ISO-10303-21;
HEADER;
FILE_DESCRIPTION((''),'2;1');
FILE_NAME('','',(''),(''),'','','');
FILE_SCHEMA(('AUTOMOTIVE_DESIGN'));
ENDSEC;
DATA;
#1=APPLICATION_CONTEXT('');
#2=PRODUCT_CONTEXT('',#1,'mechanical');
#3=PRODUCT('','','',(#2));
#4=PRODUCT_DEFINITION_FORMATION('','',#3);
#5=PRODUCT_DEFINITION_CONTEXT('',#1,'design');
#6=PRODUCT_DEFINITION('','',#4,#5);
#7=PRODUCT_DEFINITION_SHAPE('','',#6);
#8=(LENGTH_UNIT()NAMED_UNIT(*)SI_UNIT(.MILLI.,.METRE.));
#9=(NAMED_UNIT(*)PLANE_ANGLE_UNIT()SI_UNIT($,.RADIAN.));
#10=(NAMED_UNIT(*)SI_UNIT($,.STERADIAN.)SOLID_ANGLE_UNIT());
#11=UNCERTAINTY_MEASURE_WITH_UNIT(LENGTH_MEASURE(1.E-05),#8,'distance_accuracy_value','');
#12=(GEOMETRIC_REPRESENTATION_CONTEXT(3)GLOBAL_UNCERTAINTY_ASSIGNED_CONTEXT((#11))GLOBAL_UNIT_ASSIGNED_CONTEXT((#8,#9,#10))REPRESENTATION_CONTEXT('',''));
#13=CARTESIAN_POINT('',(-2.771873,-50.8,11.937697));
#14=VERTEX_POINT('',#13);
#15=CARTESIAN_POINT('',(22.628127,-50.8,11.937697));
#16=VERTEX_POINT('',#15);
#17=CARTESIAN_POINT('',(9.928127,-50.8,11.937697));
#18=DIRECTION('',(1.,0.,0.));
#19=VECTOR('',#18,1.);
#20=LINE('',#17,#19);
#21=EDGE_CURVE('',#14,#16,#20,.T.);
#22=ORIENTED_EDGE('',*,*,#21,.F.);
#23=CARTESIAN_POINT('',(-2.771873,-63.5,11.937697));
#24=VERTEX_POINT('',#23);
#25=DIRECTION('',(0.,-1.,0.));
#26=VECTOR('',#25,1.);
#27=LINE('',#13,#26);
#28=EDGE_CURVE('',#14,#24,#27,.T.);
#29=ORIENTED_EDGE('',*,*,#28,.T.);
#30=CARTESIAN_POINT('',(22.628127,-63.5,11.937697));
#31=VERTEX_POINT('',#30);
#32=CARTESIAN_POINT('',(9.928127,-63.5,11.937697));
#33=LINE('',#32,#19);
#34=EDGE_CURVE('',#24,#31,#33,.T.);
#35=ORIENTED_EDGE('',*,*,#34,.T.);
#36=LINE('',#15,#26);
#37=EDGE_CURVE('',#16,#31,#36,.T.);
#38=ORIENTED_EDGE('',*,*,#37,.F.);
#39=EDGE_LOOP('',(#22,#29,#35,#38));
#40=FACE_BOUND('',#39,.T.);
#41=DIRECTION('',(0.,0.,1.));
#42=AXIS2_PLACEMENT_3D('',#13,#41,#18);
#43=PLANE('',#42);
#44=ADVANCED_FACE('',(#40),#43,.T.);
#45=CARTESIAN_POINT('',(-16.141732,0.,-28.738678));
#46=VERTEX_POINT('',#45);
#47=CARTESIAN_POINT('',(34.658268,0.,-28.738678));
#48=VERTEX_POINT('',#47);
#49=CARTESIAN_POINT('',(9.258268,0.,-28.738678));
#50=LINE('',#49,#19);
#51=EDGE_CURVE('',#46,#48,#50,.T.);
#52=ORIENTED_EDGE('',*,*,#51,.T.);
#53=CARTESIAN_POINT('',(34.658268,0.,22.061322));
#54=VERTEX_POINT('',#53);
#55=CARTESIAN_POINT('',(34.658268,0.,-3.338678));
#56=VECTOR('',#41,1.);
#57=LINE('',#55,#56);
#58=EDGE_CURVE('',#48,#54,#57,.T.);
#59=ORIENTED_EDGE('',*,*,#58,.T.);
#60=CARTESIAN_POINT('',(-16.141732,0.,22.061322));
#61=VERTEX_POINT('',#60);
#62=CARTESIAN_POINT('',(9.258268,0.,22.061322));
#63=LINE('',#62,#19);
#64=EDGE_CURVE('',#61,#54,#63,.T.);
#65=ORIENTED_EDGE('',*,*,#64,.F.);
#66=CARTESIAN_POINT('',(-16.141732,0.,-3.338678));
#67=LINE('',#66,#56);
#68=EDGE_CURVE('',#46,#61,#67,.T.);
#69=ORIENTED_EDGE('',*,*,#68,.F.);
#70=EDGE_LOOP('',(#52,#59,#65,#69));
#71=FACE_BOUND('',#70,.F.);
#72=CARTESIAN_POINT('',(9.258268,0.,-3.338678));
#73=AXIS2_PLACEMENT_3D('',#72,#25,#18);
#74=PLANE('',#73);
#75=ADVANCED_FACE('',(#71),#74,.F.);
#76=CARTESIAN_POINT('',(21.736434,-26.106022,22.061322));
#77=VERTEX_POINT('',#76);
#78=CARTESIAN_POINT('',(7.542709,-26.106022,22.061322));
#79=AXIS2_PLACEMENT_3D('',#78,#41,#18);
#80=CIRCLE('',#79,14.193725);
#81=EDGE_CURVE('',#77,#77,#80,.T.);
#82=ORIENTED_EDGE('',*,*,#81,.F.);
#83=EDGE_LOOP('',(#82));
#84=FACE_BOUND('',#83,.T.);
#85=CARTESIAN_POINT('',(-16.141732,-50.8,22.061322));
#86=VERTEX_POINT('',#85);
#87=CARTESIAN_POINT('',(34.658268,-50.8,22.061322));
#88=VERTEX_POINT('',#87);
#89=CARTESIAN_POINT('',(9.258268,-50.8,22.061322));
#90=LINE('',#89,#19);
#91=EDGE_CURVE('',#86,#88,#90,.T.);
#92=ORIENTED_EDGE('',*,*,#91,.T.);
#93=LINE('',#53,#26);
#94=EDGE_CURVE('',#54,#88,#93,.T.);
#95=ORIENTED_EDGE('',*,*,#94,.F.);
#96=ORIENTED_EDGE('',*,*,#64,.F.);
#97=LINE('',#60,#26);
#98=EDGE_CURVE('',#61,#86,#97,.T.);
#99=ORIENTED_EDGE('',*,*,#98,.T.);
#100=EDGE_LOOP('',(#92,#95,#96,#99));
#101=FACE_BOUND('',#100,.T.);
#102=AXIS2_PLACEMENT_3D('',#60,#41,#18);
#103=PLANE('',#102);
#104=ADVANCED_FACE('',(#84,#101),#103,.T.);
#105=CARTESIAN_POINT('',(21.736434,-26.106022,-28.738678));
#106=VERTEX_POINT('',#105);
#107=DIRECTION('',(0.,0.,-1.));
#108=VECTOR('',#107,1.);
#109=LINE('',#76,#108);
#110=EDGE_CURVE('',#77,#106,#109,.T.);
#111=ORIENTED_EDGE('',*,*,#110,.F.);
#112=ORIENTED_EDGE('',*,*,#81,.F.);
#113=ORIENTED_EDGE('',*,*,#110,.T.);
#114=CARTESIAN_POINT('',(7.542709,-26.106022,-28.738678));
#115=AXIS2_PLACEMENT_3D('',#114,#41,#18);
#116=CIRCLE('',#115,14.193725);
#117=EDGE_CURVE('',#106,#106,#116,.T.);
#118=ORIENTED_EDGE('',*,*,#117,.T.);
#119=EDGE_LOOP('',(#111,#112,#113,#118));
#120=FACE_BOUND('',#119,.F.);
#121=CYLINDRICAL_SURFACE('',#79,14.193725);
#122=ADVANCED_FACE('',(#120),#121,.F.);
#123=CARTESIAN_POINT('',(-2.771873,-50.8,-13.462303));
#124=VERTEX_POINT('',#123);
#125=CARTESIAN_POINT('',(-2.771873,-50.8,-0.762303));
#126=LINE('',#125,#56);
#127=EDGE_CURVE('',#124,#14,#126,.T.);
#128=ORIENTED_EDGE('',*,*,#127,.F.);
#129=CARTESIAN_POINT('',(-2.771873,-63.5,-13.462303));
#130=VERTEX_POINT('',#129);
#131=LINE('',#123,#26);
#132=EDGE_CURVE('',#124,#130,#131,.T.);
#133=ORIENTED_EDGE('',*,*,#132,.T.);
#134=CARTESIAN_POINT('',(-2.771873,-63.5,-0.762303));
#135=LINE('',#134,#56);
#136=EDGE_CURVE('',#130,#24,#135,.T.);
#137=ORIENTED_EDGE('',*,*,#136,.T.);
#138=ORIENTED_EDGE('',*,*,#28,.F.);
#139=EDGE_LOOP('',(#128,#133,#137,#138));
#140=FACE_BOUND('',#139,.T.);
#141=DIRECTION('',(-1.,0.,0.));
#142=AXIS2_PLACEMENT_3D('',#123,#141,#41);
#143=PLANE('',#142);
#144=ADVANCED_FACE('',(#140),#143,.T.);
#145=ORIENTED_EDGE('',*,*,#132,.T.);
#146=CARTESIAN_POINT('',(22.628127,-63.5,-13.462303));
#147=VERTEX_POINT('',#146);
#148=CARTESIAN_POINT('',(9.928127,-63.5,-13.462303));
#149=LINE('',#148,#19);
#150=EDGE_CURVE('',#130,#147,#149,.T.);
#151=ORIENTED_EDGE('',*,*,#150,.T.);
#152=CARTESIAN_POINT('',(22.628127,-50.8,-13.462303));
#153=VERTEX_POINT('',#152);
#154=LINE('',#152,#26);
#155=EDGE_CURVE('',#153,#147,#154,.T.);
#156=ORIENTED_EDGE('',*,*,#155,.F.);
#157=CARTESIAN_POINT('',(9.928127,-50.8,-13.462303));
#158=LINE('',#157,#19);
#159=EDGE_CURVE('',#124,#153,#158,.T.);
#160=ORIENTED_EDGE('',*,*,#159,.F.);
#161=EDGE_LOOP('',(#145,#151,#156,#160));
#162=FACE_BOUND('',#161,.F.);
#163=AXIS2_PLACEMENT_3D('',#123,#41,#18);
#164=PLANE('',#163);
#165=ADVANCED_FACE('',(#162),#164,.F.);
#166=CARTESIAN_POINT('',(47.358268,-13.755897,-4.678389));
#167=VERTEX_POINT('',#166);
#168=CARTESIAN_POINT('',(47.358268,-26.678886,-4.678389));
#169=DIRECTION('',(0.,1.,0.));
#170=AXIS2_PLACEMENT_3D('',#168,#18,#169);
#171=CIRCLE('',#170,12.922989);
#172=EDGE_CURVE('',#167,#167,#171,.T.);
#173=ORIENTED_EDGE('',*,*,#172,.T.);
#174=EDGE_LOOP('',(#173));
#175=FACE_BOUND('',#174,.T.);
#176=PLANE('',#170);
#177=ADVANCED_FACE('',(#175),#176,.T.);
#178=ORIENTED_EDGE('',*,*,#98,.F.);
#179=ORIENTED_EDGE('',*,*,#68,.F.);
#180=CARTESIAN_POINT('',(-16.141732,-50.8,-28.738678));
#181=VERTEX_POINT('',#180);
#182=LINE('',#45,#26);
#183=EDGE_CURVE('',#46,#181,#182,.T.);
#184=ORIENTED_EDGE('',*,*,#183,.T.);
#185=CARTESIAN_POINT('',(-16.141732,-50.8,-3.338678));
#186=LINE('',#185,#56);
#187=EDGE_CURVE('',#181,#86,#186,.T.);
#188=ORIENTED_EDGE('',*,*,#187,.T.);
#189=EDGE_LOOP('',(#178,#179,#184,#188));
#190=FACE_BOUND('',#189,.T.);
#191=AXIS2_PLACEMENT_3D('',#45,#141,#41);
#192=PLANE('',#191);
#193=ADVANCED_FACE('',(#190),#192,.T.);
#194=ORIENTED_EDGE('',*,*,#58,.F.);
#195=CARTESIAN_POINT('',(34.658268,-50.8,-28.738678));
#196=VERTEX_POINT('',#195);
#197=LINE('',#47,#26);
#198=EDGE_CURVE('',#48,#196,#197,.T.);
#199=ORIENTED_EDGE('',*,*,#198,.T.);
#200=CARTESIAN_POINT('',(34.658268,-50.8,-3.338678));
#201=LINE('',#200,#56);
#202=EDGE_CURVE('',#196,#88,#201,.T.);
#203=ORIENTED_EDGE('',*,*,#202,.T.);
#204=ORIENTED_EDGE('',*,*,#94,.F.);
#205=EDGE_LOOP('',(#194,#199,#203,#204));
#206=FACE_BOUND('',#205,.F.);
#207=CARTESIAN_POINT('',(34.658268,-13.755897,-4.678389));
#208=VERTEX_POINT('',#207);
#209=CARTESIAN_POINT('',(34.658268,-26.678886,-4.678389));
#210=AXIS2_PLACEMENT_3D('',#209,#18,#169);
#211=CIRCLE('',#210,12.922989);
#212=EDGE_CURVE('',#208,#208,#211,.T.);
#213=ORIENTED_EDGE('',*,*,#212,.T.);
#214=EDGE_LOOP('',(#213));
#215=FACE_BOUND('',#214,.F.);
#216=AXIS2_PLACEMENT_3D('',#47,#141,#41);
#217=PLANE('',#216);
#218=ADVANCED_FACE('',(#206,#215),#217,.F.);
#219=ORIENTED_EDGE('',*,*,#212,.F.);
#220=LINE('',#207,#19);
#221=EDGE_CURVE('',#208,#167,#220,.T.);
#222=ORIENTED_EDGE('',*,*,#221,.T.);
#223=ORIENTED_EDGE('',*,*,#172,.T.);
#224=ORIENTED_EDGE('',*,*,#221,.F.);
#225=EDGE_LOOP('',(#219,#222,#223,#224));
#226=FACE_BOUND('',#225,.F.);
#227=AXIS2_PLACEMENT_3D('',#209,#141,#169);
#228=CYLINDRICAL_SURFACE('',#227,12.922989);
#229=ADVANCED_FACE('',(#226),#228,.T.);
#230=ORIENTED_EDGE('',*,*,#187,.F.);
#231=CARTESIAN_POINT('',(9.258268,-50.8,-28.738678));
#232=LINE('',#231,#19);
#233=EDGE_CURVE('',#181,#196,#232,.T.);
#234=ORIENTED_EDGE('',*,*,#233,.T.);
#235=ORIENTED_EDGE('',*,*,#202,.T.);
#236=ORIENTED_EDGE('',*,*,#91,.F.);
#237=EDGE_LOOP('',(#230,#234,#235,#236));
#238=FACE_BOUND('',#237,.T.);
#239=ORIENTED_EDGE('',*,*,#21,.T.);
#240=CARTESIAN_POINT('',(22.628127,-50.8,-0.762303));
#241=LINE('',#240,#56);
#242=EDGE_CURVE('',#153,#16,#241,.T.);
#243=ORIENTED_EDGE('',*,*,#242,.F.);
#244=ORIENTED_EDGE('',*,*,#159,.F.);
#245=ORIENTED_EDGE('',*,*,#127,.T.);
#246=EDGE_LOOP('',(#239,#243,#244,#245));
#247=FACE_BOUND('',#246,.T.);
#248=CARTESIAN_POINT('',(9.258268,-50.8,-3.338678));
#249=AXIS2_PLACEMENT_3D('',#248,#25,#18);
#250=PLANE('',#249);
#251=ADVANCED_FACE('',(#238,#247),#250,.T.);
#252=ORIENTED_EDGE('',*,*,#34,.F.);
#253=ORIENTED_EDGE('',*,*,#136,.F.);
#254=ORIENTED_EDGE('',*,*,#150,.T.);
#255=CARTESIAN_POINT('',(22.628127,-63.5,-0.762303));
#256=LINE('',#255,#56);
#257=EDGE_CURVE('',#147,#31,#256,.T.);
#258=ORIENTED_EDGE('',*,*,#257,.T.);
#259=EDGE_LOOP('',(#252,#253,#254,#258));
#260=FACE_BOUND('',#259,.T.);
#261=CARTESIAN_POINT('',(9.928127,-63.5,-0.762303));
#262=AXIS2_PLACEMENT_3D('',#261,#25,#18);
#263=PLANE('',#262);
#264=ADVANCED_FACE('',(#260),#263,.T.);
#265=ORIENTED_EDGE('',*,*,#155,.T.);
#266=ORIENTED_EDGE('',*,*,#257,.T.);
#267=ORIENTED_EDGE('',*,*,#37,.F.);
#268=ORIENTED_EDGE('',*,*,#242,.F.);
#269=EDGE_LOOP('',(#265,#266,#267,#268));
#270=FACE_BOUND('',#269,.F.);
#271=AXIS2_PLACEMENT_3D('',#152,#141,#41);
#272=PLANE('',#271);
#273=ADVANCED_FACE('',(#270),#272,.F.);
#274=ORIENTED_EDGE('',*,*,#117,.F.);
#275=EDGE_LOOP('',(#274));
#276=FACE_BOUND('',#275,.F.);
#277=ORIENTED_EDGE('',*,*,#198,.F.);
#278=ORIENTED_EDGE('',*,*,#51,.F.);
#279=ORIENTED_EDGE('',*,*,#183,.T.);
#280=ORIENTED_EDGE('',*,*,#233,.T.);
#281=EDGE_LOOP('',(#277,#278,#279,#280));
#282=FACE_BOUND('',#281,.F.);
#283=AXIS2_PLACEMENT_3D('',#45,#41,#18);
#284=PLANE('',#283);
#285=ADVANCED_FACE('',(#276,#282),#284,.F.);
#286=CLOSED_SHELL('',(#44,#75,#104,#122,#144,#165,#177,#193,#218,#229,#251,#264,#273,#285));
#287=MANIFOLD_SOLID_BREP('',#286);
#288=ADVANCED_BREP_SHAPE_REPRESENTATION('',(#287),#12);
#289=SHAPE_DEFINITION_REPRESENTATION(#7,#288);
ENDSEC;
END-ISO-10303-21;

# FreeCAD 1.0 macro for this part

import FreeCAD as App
import Part
import Sketcher
from FreeCAD import Vector
Q = App.Units.Quantity

doc = App.newDocument("Part")
params = doc.addObject("Spreadsheet::Sheet", "Params")
for row, (alias, value) in enumerate([
    ("sketch1_width", "2 in"),
    ("pad1_length", "2 in"),
    ("sketch2_width", "1 in"),
    ("pad2_length", "0.5 in"),
    ("pad3_length", "0.5 in"),
    ("pocket1_length", "2 in"),
], start=1):
    params.set(f"A{row}", alias)
    params.set(f"B{row}", "=" + value)
    params.setAlias(f"B{row}", alias)

body = doc.addObject("PartDesign::Body", "Body")

# Sketch on XZ plane
sketch1 = body.newObject("Sketcher::SketchObject", "Sketch")
sketch1.AttachmentSupport = (doc.getObject("XZ_Plane"), [""])
sketch1.MapMode = "FlatFace"
sketch1.addGeometry([
    Part.LineSegment(Vector(-16, 22, 0), Vector(-16, -29, 0)),
    Part.LineSegment(Vector(-16, -29, 0), Vector(35, -29, 0)),
    Part.LineSegment(Vector(35, -29, 0), Vector(35, 22, 0)),
    Part.LineSegment(Vector(35, 22, 0), Vector(-16, 22, 0)),
], False)
sketch1.addConstraint([
    Sketcher.Constraint("Coincident", 0, 2, 1, 1),
    Sketcher.Constraint("Coincident", 1, 2, 2, 1),
    Sketcher.Constraint("Coincident", 2, 2, 3, 1),
    Sketcher.Constraint("Coincident", 3, 2, 0, 1),
    Sketcher.Constraint("Vertical", 0),
    Sketcher.Constraint("Horizontal", 1),
    Sketcher.Constraint("Vertical", 2),
    Sketcher.Constraint("Horizontal", 3),
    Sketcher.Constraint("Equal", 3, 0),
    Sketcher.Constraint("DistanceX", 1, 1, 1, 2, Q("2 in")),
    Sketcher.Constraint("DistanceY", 0, 2, -1, 1, 28.738678),
    Sketcher.Constraint("DistanceX", 0, 2, -1, 1, 16.141732),
])
sketch1.setExpression("Constraints[9]", "Params.sketch1_width")
pad1 = body.newObject("PartDesign::Pad", "Pad")
pad1.Profile = sketch1
pad1.setExpression("Length", "Params.pad1_length")

# Sketch on XZ plane
sketch2 = body.newObject("Sketcher::SketchObject", "Sketch001")
sketch2.AttachmentSupport = (doc.getObject("XZ_Plane"), [""])
sketch2.MapMode = "FlatFace"
sketch2.AttachmentOffset = App.Placement(Vector(0, 0, 2 * 25.4), App.Rotation())
sketch2.addGeometry([
    Part.LineSegment(Vector(-3, 12, 0), Vector(-3, -13, 0)),
    Part.LineSegment(Vector(-3, -13, 0), Vector(23, -13, 0)),
    Part.LineSegment(Vector(23, -13, 0), Vector(23, 12, 0)),
    Part.LineSegment(Vector(23, 12, 0), Vector(-3, 12, 0)),
], False)
sketch2.addConstraint([
    Sketcher.Constraint("Coincident", 0, 2, 1, 1),
    Sketcher.Constraint("Coincident", 1, 2, 2, 1),
    Sketcher.Constraint("Coincident", 2, 2, 3, 1),
    Sketcher.Constraint("Coincident", 3, 2, 0, 1),
    Sketcher.Constraint("Vertical", 0),
    Sketcher.Constraint("Horizontal", 1),
    Sketcher.Constraint("Vertical", 2),
    Sketcher.Constraint("Horizontal", 3),
    Sketcher.Constraint("Equal", 3, 0),
    Sketcher.Constraint("DistanceX", 1, 1, 1, 2, Q("1 in")),
    Sketcher.Constraint("DistanceX", 0, 2, -1, 1, 2.771873),
    Sketcher.Constraint("DistanceY", 0, 2, -1, 1, 13.462303),
])
sketch2.setExpression("Constraints[9]", "Params.sketch2_width")
pad2 = body.newObject("PartDesign::Pad", "Pad001")
pad2.Profile = sketch2
pad2.setExpression("Length", "Params.pad2_length")

# Sketch on YZ plane
sketch3 = body.newObject("Sketcher::SketchObject", "Sketch002")
sketch3.AttachmentSupport = (doc.getObject("YZ_Plane"), [""])
sketch3.MapMode = "FlatFace"
sketch3.AttachmentOffset = App.Placement(Vector(0, 0, 34.658268), App.Rotation())
sketch3.addGeometry(Part.Circle(Vector(-27, -5, 0), Vector(0, 0, 1), 13), False)
sketch3.addConstraint([
    Sketcher.Constraint("Diameter", 0, 25.845978),
    Sketcher.Constraint("DistanceY", 0, 3, -1, 1, 4.678389),
    Sketcher.Constraint("DistanceX", 0, 3, -1, 1, 26.678886),
])
pad3 = body.newObject("PartDesign::Pad", "Pad002")
pad3.Profile = sketch3
pad3.setExpression("Length", "Params.pad3_length")

# Sketch on XY plane
sketch4 = body.newObject("Sketcher::SketchObject", "Sketch003")
sketch4.AttachmentSupport = (doc.getObject("XY_Plane"), [""])
sketch4.MapMode = "FlatFace"
sketch4.AttachmentOffset = App.Placement(Vector(0, 0, 22.061322), App.Rotation())
sketch4.addGeometry(Part.Circle(Vector(8, -26, 0), Vector(0, 0, 1), 14), False)
sketch4.addConstraint([
    Sketcher.Constraint("Diameter", 0, 28.38745),
    Sketcher.Constraint("DistanceX", -1, 1, 0, 3, 7.542709),
    Sketcher.Constraint("DistanceY", 0, 3, -1, 1, 26.106022),
])
pocket1 = body.newObject("PartDesign::Pocket", "Pocket")
pocket1.Profile = sketch4
pocket1.setExpression("Length", "Params.pocket1_length")

doc.recompute()
